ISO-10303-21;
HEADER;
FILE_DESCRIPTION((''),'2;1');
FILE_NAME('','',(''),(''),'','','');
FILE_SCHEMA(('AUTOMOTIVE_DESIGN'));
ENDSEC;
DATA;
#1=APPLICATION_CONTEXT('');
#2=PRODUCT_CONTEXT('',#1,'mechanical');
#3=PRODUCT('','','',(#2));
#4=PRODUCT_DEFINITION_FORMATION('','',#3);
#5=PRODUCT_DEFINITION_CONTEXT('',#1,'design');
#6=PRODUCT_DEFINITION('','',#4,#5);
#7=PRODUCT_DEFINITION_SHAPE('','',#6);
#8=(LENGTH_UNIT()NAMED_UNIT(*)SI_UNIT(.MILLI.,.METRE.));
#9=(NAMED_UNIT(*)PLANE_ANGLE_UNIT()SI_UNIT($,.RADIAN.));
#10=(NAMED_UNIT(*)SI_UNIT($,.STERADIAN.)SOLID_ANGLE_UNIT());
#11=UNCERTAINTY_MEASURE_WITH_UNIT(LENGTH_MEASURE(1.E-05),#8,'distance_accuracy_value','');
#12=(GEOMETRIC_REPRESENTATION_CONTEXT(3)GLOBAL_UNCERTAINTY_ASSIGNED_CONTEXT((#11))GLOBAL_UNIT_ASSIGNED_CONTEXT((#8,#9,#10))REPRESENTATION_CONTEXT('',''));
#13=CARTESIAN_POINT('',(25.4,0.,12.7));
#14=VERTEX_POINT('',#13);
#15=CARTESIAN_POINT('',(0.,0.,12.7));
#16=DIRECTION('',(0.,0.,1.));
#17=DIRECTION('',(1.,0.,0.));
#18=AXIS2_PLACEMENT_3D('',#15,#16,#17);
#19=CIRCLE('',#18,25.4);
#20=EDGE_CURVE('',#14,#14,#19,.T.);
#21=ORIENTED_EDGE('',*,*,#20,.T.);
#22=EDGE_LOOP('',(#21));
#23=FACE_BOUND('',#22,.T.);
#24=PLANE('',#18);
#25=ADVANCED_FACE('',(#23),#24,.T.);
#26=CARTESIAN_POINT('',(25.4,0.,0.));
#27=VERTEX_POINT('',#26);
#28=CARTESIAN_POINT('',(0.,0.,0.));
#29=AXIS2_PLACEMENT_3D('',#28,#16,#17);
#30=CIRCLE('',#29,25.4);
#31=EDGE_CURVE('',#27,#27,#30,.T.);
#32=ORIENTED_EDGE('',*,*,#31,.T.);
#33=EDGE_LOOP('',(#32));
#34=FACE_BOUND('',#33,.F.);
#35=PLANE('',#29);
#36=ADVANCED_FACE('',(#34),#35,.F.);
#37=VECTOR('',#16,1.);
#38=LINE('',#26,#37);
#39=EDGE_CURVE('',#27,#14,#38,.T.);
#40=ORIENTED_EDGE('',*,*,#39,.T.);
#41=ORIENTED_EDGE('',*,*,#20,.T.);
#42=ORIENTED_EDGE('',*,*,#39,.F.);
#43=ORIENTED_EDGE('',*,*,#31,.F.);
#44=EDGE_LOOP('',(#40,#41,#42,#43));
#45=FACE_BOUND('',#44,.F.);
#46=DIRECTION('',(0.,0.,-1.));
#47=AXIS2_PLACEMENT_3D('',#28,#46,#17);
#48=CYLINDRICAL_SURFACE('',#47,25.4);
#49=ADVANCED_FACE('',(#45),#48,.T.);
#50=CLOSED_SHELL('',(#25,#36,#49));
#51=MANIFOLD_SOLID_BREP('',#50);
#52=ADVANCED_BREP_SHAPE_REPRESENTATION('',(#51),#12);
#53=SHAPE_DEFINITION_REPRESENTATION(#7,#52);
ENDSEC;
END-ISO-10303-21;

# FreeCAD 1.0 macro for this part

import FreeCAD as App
import Part
import Sketcher

V = App.Vector
Q = App.Units.Quantity

doc = App.newDocument("Part")
body = doc.addObject("PartDesign::Body", "Body")

sketch1 = doc.addObject("Sketcher::SketchObject", "Sketch")
body.addObject(sketch1)
sketch1.AttachmentSupport = (doc.XY_Plane, [""])
sketch1.MapMode = "FlatFace"
sketch1.addGeometry(Part.Circle(V(0, 0, 0), V(0, 0, 1), 25), False)
sketch1.addConstraint([
    Sketcher.Constraint("Coincident", 0, 3, -1, 1),
    Sketcher.Constraint("Diameter", 0, Q("2 in")),
])
pad1 = doc.addObject("PartDesign::Pad", "Pad")
body.addObject(pad1)
pad1.Profile = sketch1
pad1.Length = Q("0.5 in")

doc.recompute()
